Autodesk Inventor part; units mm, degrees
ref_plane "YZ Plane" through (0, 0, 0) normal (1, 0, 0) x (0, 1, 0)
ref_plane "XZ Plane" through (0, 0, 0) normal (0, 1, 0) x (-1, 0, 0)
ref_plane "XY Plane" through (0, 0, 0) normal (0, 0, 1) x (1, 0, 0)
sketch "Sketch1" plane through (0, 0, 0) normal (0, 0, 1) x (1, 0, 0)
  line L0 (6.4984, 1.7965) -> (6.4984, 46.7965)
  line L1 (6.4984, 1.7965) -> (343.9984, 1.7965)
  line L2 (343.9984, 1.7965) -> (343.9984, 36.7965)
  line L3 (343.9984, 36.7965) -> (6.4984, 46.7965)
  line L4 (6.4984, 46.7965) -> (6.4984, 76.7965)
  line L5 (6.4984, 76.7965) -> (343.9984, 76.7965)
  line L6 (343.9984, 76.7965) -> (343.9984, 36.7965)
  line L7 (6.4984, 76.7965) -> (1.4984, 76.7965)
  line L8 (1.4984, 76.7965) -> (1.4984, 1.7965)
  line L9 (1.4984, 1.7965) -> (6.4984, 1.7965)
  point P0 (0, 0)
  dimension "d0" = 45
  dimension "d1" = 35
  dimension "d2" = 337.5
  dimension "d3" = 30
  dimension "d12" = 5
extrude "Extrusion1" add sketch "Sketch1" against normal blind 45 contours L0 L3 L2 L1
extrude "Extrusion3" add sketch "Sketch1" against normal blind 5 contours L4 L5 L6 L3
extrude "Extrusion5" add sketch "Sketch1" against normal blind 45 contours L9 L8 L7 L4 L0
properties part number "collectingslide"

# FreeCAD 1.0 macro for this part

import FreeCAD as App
import Part
import Sketcher

V = App.Vector
Q = App.Units.Quantity


def add_polygon(sketch, points):
    """Adds a closed chain of lines whose ends are joined by coincident constraints."""
    first, n = sketch.GeometryCount, len(points)
    for a, b in zip(points, points[1:] + points[:1]):
        sketch.addGeometry(Part.LineSegment(App.Vector(*a, 0), App.Vector(*b, 0)), False)
    for i in range(n):
        sketch.addConstraint(Sketcher.Constraint("Coincident", first + i, 2, first + (i + 1) % n, 1))

doc = App.newDocument("Part")
body = doc.addObject("PartDesign::Body", "Body")

sketch1 = body.newObject("Sketcher::SketchObject", "Sketch")
sketch1.AttachmentSupport = (doc.getObject("XY_Plane"), [""])
sketch1.MapMode = "FlatFace"
add_polygon(sketch1, [(6, 47), (6, 2), (344, 2), (344, 37)])
sketch1.addConstraint([
    Sketcher.Constraint("Vertical", 0),
    Sketcher.Constraint("Horizontal", 1),
    Sketcher.Constraint("Vertical", 2),
    Sketcher.Constraint("DistanceY", 0, 2, 0, 1, Q("45 mm")),
    Sketcher.Constraint("DistanceY", 2, 1, 2, 2, Q("35 mm")),
    Sketcher.Constraint("DistanceX", 1, 1, 1, 2, Q("337.5 mm")),
    Sketcher.Constraint("DistanceX", -1, 1, 0, 2, Q("6.4984 mm")),
    Sketcher.Constraint("DistanceY", -1, 1, 0, 2, Q("1.7965 mm")),
])
pad1 = body.newObject("PartDesign::Pad", "Pad")
pad1.Profile = sketch1
pad1.Length = 45
pad1.Reversed = True

sketch2 = body.newObject("Sketcher::SketchObject", "Sketch001")
sketch2.AttachmentSupport = (doc.getObject("XY_Plane"), [""])
sketch2.MapMode = "FlatFace"
add_polygon(sketch2, [(6, 77), (6, 47), (344, 37), (344, 77)])
sketch2.addConstraint([
    Sketcher.Constraint("Vertical", 0),
    Sketcher.Constraint("Vertical", 2),
    Sketcher.Constraint("Horizontal", 3),
    Sketcher.Constraint("DistanceY", 0, 2, 0, 1, Q("30 mm")),
    Sketcher.Constraint("DistanceX", 3, 2, 3, 1, Q("337.5 mm")),
    Sketcher.Constraint("DistanceY", 2, 1, 2, 2, Q("40 mm")),
    Sketcher.Constraint("DistanceX", -1, 1, 0, 2, Q("6.4984 mm")),
    Sketcher.Constraint("DistanceY", -1, 1, 0, 2, Q("46.7965 mm")),
])
pad2 = body.newObject("PartDesign::Pad", "Pad001")
pad2.Profile = sketch2
pad2.Length = 5
pad2.Reversed = True

sketch3 = body.newObject("Sketcher::SketchObject", "Sketch002")
sketch3.AttachmentSupport = (doc.getObject("XY_Plane"), [""])
sketch3.MapMode = "FlatFace"
add_polygon(sketch3, [(1, 2), (6, 2), (6, 77), (1, 77)])
sketch3.addConstraint([
    Sketcher.Constraint("Horizontal", 0),
    Sketcher.Constraint("Vertical", 1),
    Sketcher.Constraint("Horizontal", 2),
    Sketcher.Constraint("Vertical", 3),
    Sketcher.Constraint("DistanceX", 0, 1, 0, 2, Q("5 mm")),
    Sketcher.Constraint("DistanceY", 1, 1, 1, 2, Q("75 mm")),
    Sketcher.Constraint("DistanceX", -1, 1, 0, 2, Q("6.4984 mm")),
    Sketcher.Constraint("DistanceY", -1, 1, 0, 2, Q("1.7965 mm")),
])
pad3 = body.newObject("PartDesign::Pad", "Pad002")
pad3.Profile = sketch3
pad3.Length = 45
pad3.Reversed = True

doc.recompute()
